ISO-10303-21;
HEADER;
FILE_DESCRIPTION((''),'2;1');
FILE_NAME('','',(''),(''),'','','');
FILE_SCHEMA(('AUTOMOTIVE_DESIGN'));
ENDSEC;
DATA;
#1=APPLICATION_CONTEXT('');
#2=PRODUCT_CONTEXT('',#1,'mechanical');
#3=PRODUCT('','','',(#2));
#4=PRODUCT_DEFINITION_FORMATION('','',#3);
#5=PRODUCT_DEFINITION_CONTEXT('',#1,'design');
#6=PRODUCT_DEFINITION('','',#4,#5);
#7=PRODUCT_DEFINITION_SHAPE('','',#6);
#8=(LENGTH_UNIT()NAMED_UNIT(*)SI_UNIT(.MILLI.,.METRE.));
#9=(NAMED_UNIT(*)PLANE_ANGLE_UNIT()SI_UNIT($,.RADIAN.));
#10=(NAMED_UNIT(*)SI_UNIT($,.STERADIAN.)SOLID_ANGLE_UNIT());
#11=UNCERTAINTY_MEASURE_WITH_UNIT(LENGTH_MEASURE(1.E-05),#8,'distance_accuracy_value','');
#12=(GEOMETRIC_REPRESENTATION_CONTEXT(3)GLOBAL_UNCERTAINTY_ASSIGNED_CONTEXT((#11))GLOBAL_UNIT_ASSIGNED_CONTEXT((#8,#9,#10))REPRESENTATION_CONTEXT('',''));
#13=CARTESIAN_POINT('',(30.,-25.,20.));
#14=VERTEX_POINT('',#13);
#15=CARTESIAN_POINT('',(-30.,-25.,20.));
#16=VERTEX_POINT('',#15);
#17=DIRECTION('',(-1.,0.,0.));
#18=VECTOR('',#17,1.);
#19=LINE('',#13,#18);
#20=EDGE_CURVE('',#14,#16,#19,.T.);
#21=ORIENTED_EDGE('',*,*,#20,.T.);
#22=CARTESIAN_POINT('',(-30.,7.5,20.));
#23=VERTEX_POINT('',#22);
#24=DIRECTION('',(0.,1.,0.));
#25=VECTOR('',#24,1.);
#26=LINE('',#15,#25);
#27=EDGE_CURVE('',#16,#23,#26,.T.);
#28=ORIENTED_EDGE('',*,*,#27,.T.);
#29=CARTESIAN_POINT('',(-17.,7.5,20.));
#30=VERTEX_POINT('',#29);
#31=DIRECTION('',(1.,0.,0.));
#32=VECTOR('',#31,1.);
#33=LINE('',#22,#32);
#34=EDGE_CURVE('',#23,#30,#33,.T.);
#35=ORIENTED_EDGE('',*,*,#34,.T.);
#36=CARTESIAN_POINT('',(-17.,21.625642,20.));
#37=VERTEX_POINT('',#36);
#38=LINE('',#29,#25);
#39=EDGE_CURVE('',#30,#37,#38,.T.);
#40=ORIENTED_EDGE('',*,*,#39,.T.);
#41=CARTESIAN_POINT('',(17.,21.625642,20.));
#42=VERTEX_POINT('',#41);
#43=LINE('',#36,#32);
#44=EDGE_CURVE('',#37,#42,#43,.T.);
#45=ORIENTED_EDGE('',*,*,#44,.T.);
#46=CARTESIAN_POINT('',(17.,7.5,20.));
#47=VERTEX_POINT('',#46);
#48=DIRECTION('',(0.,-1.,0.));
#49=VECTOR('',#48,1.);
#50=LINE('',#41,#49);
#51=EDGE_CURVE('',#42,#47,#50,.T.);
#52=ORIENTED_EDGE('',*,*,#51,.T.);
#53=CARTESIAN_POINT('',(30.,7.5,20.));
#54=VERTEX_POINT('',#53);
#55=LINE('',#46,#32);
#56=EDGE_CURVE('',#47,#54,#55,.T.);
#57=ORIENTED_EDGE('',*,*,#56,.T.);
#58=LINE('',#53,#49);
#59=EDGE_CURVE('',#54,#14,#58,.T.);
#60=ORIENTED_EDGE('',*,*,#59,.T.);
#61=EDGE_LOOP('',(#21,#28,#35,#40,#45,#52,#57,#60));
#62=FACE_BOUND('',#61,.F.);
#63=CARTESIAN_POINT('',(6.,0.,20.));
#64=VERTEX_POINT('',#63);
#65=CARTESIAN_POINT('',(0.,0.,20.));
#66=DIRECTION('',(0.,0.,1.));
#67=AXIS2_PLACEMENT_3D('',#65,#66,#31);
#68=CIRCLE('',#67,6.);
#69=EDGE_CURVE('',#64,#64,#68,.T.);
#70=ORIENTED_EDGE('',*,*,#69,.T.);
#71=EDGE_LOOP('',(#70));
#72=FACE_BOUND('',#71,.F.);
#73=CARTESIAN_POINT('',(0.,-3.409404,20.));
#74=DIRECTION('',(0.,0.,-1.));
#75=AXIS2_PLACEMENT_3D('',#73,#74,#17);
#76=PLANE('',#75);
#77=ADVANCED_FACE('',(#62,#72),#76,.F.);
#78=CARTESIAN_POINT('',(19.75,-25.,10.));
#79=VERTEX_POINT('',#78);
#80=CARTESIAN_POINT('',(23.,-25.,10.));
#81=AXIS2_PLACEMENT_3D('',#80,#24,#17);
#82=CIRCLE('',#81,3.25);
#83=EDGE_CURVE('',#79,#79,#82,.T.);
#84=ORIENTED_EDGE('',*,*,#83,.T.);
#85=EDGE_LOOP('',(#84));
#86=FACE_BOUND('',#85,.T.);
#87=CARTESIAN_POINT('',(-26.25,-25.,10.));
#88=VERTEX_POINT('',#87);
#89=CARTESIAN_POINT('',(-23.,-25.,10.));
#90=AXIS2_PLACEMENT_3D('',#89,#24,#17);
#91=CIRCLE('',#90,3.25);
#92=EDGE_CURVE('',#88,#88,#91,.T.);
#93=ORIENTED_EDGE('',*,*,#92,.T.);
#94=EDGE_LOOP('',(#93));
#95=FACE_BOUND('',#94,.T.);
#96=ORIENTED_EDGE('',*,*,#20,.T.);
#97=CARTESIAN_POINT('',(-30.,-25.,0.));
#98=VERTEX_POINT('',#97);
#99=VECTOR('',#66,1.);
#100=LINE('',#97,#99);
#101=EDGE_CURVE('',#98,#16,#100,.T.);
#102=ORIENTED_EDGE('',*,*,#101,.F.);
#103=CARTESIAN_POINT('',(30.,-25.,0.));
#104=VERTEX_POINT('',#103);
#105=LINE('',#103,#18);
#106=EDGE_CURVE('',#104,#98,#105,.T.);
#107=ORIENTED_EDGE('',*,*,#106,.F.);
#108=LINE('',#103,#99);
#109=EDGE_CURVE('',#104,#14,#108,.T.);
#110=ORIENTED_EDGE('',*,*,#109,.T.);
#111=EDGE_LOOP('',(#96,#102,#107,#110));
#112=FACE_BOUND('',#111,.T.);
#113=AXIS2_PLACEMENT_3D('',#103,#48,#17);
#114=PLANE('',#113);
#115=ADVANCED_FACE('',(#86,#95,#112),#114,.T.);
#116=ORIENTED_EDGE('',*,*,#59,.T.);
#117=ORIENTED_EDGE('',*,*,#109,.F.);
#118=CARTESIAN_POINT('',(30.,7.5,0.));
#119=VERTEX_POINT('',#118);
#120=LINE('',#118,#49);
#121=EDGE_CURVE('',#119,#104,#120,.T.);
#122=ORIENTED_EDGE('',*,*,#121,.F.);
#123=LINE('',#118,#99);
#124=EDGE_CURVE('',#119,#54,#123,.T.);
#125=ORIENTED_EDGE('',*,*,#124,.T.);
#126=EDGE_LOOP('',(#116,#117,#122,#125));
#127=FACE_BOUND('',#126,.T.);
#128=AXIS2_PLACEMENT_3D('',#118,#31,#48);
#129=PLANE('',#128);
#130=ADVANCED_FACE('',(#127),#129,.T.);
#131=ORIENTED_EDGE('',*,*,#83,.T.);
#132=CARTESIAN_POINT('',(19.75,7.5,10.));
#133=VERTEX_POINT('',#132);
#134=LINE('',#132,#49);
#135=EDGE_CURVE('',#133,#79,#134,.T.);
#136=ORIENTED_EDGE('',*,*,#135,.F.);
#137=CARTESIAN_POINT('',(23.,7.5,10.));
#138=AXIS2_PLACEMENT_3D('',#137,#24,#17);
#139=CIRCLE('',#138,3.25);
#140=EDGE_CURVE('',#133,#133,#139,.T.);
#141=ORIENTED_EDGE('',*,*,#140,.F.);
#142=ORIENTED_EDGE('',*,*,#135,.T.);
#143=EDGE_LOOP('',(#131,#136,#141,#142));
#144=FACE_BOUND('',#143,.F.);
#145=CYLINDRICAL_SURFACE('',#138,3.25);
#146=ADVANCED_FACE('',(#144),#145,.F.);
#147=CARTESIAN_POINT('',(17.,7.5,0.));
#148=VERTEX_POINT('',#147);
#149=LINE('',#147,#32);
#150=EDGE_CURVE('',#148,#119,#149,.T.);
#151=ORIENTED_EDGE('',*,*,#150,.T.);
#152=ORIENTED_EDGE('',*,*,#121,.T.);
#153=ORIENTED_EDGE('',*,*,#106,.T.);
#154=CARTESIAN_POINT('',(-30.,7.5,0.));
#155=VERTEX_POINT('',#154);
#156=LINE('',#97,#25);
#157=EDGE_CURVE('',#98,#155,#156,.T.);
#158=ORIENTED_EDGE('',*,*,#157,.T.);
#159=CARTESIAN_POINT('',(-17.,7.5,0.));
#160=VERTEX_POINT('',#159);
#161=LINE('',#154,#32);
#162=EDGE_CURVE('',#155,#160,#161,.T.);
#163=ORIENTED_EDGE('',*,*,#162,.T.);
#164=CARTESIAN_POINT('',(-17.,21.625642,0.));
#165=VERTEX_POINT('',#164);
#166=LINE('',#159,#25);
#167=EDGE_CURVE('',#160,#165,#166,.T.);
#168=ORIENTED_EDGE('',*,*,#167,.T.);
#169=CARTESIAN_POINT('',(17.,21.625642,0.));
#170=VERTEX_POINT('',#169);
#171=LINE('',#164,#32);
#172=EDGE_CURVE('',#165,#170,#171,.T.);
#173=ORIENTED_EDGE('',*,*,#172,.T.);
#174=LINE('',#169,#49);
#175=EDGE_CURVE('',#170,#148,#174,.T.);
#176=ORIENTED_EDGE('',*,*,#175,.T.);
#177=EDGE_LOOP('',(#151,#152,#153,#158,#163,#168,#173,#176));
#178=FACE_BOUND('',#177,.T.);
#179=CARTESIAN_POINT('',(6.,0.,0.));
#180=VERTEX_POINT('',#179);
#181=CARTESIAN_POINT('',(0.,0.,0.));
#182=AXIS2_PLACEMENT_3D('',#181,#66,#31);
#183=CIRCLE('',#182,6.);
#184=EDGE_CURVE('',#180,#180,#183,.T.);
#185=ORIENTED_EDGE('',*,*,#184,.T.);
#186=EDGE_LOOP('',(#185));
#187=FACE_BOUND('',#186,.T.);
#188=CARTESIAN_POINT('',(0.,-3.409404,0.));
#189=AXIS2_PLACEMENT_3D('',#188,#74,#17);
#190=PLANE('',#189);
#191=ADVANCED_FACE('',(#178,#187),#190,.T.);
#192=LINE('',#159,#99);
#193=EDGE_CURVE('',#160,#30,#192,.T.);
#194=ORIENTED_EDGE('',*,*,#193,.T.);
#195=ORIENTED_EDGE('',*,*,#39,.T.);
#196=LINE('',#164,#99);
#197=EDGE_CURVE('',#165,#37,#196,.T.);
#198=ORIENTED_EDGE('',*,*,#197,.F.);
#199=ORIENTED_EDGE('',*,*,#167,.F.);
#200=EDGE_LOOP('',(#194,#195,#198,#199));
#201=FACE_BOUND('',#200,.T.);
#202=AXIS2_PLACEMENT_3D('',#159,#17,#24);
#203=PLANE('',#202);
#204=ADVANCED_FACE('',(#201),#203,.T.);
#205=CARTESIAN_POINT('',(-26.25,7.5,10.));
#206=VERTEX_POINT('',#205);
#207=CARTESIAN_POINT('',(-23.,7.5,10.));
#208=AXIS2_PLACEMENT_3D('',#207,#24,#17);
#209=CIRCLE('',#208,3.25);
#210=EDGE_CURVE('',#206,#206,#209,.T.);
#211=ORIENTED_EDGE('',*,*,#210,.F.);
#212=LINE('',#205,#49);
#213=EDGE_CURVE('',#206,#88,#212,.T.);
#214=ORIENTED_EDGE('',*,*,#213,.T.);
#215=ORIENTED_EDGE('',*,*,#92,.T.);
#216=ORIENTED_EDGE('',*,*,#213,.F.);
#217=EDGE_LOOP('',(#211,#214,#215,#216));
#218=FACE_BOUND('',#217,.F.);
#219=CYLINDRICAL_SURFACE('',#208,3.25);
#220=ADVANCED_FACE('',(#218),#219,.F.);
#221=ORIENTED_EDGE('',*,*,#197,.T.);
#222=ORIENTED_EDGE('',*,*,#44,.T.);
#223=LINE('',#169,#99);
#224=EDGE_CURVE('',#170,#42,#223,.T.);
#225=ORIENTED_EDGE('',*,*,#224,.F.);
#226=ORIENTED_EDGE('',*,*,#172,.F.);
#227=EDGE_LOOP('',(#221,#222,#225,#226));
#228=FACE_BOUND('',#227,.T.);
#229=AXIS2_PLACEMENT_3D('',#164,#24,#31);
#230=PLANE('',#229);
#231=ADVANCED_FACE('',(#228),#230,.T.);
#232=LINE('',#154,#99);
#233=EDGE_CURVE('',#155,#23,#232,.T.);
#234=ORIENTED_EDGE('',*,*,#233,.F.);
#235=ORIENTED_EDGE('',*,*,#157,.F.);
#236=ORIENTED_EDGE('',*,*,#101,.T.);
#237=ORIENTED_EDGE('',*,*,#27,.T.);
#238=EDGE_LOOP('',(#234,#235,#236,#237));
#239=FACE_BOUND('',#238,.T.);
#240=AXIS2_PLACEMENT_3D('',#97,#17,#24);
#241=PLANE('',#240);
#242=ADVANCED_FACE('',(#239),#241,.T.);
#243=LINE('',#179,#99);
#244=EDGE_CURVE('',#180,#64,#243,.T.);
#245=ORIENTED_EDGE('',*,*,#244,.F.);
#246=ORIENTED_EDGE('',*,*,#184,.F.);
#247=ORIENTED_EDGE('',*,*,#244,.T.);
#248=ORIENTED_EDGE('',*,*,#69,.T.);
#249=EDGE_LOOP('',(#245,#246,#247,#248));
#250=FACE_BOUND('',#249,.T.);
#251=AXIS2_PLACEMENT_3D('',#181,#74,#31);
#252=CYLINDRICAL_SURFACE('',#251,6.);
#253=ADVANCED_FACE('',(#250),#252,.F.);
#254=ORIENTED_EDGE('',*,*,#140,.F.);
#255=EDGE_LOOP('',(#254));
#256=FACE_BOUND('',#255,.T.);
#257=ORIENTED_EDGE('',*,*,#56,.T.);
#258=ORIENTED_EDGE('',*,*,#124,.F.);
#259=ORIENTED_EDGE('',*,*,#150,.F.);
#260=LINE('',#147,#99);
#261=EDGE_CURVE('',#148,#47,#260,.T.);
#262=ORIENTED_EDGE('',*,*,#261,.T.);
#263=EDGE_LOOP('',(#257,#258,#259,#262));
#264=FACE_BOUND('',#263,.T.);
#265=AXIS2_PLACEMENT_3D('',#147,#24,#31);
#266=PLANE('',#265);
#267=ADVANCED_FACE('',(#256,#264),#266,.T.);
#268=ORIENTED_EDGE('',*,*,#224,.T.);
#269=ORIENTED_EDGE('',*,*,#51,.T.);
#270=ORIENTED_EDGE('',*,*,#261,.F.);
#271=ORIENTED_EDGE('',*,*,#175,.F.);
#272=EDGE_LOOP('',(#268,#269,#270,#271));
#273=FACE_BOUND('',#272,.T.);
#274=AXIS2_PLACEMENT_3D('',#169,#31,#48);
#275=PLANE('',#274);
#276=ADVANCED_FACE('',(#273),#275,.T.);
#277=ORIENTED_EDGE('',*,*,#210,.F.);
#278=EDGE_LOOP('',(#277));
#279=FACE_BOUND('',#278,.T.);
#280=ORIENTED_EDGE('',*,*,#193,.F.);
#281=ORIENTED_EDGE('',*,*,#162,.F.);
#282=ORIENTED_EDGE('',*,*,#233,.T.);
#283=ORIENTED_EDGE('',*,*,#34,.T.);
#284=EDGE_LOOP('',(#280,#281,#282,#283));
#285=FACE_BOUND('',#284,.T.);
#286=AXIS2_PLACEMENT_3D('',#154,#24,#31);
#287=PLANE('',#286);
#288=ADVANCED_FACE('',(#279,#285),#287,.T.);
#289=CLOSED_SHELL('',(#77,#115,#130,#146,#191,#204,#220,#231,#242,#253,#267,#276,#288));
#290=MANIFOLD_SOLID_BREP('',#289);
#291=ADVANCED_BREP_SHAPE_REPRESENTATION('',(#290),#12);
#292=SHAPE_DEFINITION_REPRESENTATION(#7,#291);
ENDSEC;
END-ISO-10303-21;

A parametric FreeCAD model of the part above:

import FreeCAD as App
import Part
import Sketcher

doc = App.newDocument("Part")
params = doc.addObject("Spreadsheet::Sheet", "Params")
for row, (alias, value) in enumerate([
    ("sketch1_diameter", "12 mm"),
    ("sketch1_width", "34 mm"),
    ("sketch1_width2", "13 mm"),
    ("sketch1_height", "32.5 mm"),
    ("pad1_length", "20 mm"),
    ("sketch2_diameter", "6.5 mm"),
], start=1):
    params.set(f"A{row}", alias)
    params.set(f"B{row}", "=" + value)
    params.setAlias(f"B{row}", alias)

body = doc.addObject("PartDesign::Body", "Body")

sketch1 = body.newObject("Sketcher::SketchObject", "Sketch")
sketch1.AttachmentSupport = (doc.getObject("XY_Plane"), [""])
sketch1.MapMode = "FlatFace"
sketch1.addGeometry(Part.LineSegment(App.Vector(17, 21.625642, 0), App.Vector(-17, 21.625642, 0)), False)
sketch1.addGeometry(Part.LineSegment(App.Vector(-17, 21.625642, 0), App.Vector(-17, 7.5, 0)), False)
sketch1.addGeometry(Part.LineSegment(App.Vector(-17, 7.5, 0), App.Vector(-30, 7.5, 0)), False)
sketch1.addGeometry(Part.LineSegment(App.Vector(-30, 7.5, 0), App.Vector(-30, -25, 0)), False)
sketch1.addGeometry(Part.LineSegment(App.Vector(-30, -25, 0), App.Vector(30, -25, 0)), False)
sketch1.addGeometry(Part.LineSegment(App.Vector(30, -25, 0), App.Vector(30, 7.5, 0)), False)
sketch1.addGeometry(Part.LineSegment(App.Vector(30, 7.5, 0), App.Vector(17, 7.5, 0)), False)
sketch1.addGeometry(Part.LineSegment(App.Vector(17, 7.5, 0), App.Vector(17, 21.625642, 0)), False)
sketch1.addGeometry(Part.Circle(App.Vector(0, 0, 0), App.Vector(0, 0, 1), 6), False)
sketch1.addConstraint(Sketcher.Constraint("Coincident", 0, 2, 1, 1))
sketch1.addConstraint(Sketcher.Constraint("Coincident", 1, 2, 2, 1))
sketch1.addConstraint(Sketcher.Constraint("Coincident", 2, 2, 3, 1))
sketch1.addConstraint(Sketcher.Constraint("Coincident", 3, 2, 4, 1))
sketch1.addConstraint(Sketcher.Constraint("Coincident", 4, 2, 5, 1))
sketch1.addConstraint(Sketcher.Constraint("Coincident", 5, 2, 6, 1))
sketch1.addConstraint(Sketcher.Constraint("Coincident", 6, 2, 7, 1))
sketch1.addConstraint(Sketcher.Constraint("Coincident", 7, 2, 0, 1))
sketch1.addConstraint(Sketcher.Constraint("Horizontal", 0))
sketch1.addConstraint(Sketcher.Constraint("Vertical", 1))
sketch1.addConstraint(Sketcher.Constraint("Horizontal", 2))
sketch1.addConstraint(Sketcher.Constraint("Vertical", 3))
sketch1.addConstraint(Sketcher.Constraint("Horizontal", 4))
sketch1.addConstraint(Sketcher.Constraint("Vertical", 5))
sketch1.addConstraint(Sketcher.Constraint("Horizontal", 6))
sketch1.addConstraint(Sketcher.Constraint("Vertical", 7))
sketch1.addConstraint(Sketcher.Constraint("Coincident", 8, 3, -1, 1))
sketch1.addConstraint(Sketcher.Constraint("Symmetric", 2, 2, 5, 2, -2))
sketch1.addConstraint(Sketcher.Constraint("Equal", 2, 6))
sketch1.addConstraint(Sketcher.Constraint("Diameter", 8, 12.0))
sketch1.addConstraint(Sketcher.Constraint("DistanceX", 0, 2, 0, 1, 34.0))
sketch1.addConstraint(Sketcher.Constraint("DistanceX", 2, 2, 2, 1, 13.0))
sketch1.addConstraint(Sketcher.Constraint("DistanceY", 3, 2, 3, 1, 32.5))
sketch1.addConstraint(Sketcher.Constraint("DistanceY", 3, 2, -1, 1, 25.0))
sketch1.addConstraint(Sketcher.Constraint("DistanceY", 1, 2, 1, 1, 14.125642))
sketch1.setExpression("Constraints[19]", "Params.sketch1_diameter")
sketch1.setExpression("Constraints[20]", "Params.sketch1_width")
sketch1.setExpression("Constraints[21]", "Params.sketch1_width2")
sketch1.setExpression("Constraints[22]", "Params.sketch1_height")
pad1 = body.newObject("PartDesign::Pad", "Pad")
pad1.Profile = sketch1
pad1.setExpression("Length", "Params.pad1_length")

sketch2 = body.newObject("Sketcher::SketchObject", "Sketch001")
sketch2.AttachmentSupport = (doc.getObject("XZ_Plane"), [""])
sketch2.MapMode = "FlatFace"
sketch2.AttachmentOffset = App.Placement(App.Vector(0, 0, -7.5), App.Rotation())
sketch2.addGeometry(Part.Circle(App.Vector(23, 10, 0), App.Vector(0, 0, 1), 3.25), False)
sketch2.addGeometry(Part.Circle(App.Vector(-23, 10, 0), App.Vector(0, 0, 1), 3.25), False)
sketch2.addConstraint(Sketcher.Constraint("Equal", 0, 1))
sketch2.addConstraint(Sketcher.Constraint("Symmetric", 0, 3, 1, 3, -2))
sketch2.addConstraint(Sketcher.Constraint("Diameter", 0, 6.5))
sketch2.addConstraint(Sketcher.Constraint("DistanceX", -1, 1, 0, 3, 23.0))
sketch2.addConstraint(Sketcher.Constraint("DistanceY", -1, 1, 0, 3, 10.0))
sketch2.setExpression("Constraints[2]", "Params.sketch2_diameter")
pocket1 = body.newObject("PartDesign::Pocket", "Pocket")
pocket1.Profile = sketch2
pocket1.Type = "ThroughAll"
pocket1.Reversed = True

doc.recompute()
